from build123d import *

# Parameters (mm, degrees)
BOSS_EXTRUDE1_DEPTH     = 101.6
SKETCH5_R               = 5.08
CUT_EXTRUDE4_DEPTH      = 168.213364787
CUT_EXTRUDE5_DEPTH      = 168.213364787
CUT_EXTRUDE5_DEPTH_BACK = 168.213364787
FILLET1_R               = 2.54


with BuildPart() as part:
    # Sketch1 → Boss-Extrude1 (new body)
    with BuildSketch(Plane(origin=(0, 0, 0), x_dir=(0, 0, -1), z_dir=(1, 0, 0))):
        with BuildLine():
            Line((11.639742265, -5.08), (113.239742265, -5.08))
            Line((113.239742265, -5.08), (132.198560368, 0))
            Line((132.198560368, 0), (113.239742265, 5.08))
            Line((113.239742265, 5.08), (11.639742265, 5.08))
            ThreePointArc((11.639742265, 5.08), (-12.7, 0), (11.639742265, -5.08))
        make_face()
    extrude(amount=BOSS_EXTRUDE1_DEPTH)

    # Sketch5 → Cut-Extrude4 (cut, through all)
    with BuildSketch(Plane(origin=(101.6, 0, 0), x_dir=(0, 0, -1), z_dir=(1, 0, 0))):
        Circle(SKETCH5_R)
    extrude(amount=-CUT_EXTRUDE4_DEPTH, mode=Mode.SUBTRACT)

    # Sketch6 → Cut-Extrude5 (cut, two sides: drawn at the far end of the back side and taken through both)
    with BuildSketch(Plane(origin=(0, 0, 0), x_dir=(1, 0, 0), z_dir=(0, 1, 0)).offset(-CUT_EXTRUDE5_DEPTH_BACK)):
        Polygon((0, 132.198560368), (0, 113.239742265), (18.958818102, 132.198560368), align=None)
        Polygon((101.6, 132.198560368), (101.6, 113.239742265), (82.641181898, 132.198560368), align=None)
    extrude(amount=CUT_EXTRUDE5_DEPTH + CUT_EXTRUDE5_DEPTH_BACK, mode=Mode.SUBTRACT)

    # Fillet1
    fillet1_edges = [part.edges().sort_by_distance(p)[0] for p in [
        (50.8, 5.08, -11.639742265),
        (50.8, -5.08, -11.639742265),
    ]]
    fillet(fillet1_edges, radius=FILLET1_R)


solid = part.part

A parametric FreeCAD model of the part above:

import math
import FreeCAD as App
import Part
import Sketcher
Q = App.Units.Quantity


def edges_at(feature, points):
    """Names of the edges that pass closest to the given points."""
    edges = feature.Shape.Edges
    near = lambda p: min(range(len(edges)), key=lambda i: edges[i].distToShape(Part.Vertex(*p))[0])
    return sorted({f"Edge{near(p) + 1}" for p in points})


def add_polygon(sketch, points):
    """Adds a closed chain of lines whose ends are joined by coincident constraints."""
    first, n = sketch.GeometryCount, len(points)
    for a, b in zip(points, points[1:] + points[:1]):
        sketch.addGeometry(Part.LineSegment(App.Vector(*a, 0), App.Vector(*b, 0)), False)
    for i in range(n):
        sketch.addConstraint(Sketcher.Constraint("Coincident", first + i, 2, first + (i + 1) % n, 1))

doc = App.newDocument("Part")
params = doc.addObject("Spreadsheet::Sheet", "Params")
for row, (alias, value) in enumerate([
    ("sketch1_radius", "0.5 in"),
    ("sketch1_height", "4 in"),
    ("pad1_length", "4 in"),
    ("sketch2_diameter", "0.4 in"),
    ("fillet_radius", "0.1 in"),
], start=1):
    params.set(f"A{row}", alias)
    params.set(f"B{row}", "=" + value)
    params.setAlias(f"B{row}", alias)

body = doc.addObject("PartDesign::Body", "Body")

# Sketch on YZ plane
sketch1 = doc.addObject("Sketcher::SketchObject", "Sketch")
body.addObject(sketch1)
sketch1.AttachmentSupport = (doc.YZ_Plane, [""])
sketch1.MapMode = "FlatFace"
sketch1.addGeometry([
    Part.LineSegment(App.Vector(-5.08, -11.639742, 0), App.Vector(-5.08, -113.239742, 0)),  # 0
    Part.LineSegment(App.Vector(-5.08, -113.239742, 0), App.Vector(0, -132.19856, 0)),  # 1
    Part.LineSegment(App.Vector(0, -132.19856, 0), App.Vector(5.08, -113.239742, 0)),  # 2
    Part.LineSegment(App.Vector(5.08, -113.239742, 0), App.Vector(5.08, -11.639742, 0)),  # 3
    Part.ArcOfCircle(Part.Circle(App.Vector(0, 0, 0), App.Vector(0, 0, 1), 12.7), math.radians(-66.421822), math.radians(246.421822)),  # 4
], False)
sketch1.addConstraint([
    Sketcher.Constraint("Coincident", 0, 2, 1, 1),
    Sketcher.Constraint("Coincident", 1, 2, 2, 1),
    Sketcher.Constraint("Coincident", 2, 2, 3, 1),
    Sketcher.Constraint("Coincident", 3, 2, 4, 1),
    Sketcher.Constraint("Coincident", 4, 2, 0, 1),
    Sketcher.Constraint("Vertical", 0),
    Sketcher.Constraint("Vertical", 3),
    Sketcher.Constraint("Coincident", 4, 3, -1, 1),
    Sketcher.Constraint("Symmetric", 0, 2, 2, 2, -2),
    Sketcher.Constraint("PointOnObject", 1, 2, -2),
    Sketcher.Constraint("Radius", 4, Q("0.5 in")),
    Sketcher.Constraint("DistanceY", 0, 2, 0, 1, Q("4 in")),
    Sketcher.Constraint("Angle", 1, Q("-75 deg")),
    Sketcher.Constraint("DistanceX", 0, 2, -1, 1, Q("0.2 in")),
])
sketch1.setExpression("Constraints[10]", "Params.sketch1_radius")
sketch1.setExpression("Constraints[11]", "Params.sketch1_height")
pad1 = doc.addObject("PartDesign::Pad", "Pad")
body.addObject(pad1)
pad1.Profile = sketch1
pad1.setExpression("Length", "Params.pad1_length")

# Sketch on YZ plane
sketch2 = doc.addObject("Sketcher::SketchObject", "Sketch001")
body.addObject(sketch2)
sketch2.AttachmentSupport = (doc.YZ_Plane, [""])
sketch2.MapMode = "FlatFace"
sketch2.AttachmentOffset = App.Placement(App.Vector(0, 0, 4 * 25.4), App.Rotation())
sketch2.addGeometry(Part.Circle(App.Vector(0, 0, 0), App.Vector(0, 0, 1), 5.08), False)
sketch2.addConstraint([
    Sketcher.Constraint("Coincident", 0, 3, -1, 1),
    Sketcher.Constraint("Diameter", 0, Q("0.4 in")),
])
sketch2.setExpression("Constraints[1]", "Params.sketch2_diameter")
pocket1 = doc.addObject("PartDesign::Pocket", "Pocket")
body.addObject(pocket1)
pocket1.Profile = sketch2
pocket1.Type = "ThroughAll"

# Sketch on XZ plane
sketch3 = doc.addObject("Sketcher::SketchObject", "Sketch002")
body.addObject(sketch3)
sketch3.AttachmentSupport = (doc.XZ_Plane, [""])
sketch3.MapMode = "FlatFace"
add_polygon(sketch3, [(0, -132.19856), (0, -113.239742), (18.958818, -132.19856)])  # lines 0-2
add_polygon(sketch3, [(101.6, -113.239742), (101.6, -132.19856), (82.641182, -132.19856)])  # lines 3-5
sketch3.addConstraint([
    Sketcher.Constraint("Vertical", 0),
    Sketcher.Constraint("Horizontal", 2),
    Sketcher.Constraint("Vertical", 3),
    Sketcher.Constraint("Horizontal", 4),
    Sketcher.Constraint("PointOnObject", 0, 2, -2),
    Sketcher.Constraint("Perpendicular", 1, 5),
    Sketcher.Constraint("Horizontal", 2, 2, 3, 2),
    Sketcher.Constraint("Horizontal", 0, 2, 5, 2),
    Sketcher.Constraint("Equal", 2, 4),
    Sketcher.Constraint("DistanceX", -1, 1, 3, 2, Q("4 in")),
    Sketcher.Constraint("DistanceX", 2, 2, 2, 1, Q("18.958818 mm")),
    Sketcher.Constraint("DistanceY", 1, 2, -1, 1, Q("132.19856 mm")),
])
pocket2 = doc.addObject("PartDesign::Pocket", "Pocket001")
body.addObject(pocket2)
pocket2.Profile = sketch3
pocket2.Type = "ThroughAll"
pocket2.Midplane = True
doc.recompute()

fillet = doc.addObject("PartDesign::Fillet", "Fillet")
body.addObject(fillet)
fillet.Base = (pocket2, edges_at(pocket2, [(50.8, 5.08, -11.64), (50.8, -5.08, -11.64)]))
fillet.setExpression("Radius", "Params.fillet_radius")

doc.recompute()
